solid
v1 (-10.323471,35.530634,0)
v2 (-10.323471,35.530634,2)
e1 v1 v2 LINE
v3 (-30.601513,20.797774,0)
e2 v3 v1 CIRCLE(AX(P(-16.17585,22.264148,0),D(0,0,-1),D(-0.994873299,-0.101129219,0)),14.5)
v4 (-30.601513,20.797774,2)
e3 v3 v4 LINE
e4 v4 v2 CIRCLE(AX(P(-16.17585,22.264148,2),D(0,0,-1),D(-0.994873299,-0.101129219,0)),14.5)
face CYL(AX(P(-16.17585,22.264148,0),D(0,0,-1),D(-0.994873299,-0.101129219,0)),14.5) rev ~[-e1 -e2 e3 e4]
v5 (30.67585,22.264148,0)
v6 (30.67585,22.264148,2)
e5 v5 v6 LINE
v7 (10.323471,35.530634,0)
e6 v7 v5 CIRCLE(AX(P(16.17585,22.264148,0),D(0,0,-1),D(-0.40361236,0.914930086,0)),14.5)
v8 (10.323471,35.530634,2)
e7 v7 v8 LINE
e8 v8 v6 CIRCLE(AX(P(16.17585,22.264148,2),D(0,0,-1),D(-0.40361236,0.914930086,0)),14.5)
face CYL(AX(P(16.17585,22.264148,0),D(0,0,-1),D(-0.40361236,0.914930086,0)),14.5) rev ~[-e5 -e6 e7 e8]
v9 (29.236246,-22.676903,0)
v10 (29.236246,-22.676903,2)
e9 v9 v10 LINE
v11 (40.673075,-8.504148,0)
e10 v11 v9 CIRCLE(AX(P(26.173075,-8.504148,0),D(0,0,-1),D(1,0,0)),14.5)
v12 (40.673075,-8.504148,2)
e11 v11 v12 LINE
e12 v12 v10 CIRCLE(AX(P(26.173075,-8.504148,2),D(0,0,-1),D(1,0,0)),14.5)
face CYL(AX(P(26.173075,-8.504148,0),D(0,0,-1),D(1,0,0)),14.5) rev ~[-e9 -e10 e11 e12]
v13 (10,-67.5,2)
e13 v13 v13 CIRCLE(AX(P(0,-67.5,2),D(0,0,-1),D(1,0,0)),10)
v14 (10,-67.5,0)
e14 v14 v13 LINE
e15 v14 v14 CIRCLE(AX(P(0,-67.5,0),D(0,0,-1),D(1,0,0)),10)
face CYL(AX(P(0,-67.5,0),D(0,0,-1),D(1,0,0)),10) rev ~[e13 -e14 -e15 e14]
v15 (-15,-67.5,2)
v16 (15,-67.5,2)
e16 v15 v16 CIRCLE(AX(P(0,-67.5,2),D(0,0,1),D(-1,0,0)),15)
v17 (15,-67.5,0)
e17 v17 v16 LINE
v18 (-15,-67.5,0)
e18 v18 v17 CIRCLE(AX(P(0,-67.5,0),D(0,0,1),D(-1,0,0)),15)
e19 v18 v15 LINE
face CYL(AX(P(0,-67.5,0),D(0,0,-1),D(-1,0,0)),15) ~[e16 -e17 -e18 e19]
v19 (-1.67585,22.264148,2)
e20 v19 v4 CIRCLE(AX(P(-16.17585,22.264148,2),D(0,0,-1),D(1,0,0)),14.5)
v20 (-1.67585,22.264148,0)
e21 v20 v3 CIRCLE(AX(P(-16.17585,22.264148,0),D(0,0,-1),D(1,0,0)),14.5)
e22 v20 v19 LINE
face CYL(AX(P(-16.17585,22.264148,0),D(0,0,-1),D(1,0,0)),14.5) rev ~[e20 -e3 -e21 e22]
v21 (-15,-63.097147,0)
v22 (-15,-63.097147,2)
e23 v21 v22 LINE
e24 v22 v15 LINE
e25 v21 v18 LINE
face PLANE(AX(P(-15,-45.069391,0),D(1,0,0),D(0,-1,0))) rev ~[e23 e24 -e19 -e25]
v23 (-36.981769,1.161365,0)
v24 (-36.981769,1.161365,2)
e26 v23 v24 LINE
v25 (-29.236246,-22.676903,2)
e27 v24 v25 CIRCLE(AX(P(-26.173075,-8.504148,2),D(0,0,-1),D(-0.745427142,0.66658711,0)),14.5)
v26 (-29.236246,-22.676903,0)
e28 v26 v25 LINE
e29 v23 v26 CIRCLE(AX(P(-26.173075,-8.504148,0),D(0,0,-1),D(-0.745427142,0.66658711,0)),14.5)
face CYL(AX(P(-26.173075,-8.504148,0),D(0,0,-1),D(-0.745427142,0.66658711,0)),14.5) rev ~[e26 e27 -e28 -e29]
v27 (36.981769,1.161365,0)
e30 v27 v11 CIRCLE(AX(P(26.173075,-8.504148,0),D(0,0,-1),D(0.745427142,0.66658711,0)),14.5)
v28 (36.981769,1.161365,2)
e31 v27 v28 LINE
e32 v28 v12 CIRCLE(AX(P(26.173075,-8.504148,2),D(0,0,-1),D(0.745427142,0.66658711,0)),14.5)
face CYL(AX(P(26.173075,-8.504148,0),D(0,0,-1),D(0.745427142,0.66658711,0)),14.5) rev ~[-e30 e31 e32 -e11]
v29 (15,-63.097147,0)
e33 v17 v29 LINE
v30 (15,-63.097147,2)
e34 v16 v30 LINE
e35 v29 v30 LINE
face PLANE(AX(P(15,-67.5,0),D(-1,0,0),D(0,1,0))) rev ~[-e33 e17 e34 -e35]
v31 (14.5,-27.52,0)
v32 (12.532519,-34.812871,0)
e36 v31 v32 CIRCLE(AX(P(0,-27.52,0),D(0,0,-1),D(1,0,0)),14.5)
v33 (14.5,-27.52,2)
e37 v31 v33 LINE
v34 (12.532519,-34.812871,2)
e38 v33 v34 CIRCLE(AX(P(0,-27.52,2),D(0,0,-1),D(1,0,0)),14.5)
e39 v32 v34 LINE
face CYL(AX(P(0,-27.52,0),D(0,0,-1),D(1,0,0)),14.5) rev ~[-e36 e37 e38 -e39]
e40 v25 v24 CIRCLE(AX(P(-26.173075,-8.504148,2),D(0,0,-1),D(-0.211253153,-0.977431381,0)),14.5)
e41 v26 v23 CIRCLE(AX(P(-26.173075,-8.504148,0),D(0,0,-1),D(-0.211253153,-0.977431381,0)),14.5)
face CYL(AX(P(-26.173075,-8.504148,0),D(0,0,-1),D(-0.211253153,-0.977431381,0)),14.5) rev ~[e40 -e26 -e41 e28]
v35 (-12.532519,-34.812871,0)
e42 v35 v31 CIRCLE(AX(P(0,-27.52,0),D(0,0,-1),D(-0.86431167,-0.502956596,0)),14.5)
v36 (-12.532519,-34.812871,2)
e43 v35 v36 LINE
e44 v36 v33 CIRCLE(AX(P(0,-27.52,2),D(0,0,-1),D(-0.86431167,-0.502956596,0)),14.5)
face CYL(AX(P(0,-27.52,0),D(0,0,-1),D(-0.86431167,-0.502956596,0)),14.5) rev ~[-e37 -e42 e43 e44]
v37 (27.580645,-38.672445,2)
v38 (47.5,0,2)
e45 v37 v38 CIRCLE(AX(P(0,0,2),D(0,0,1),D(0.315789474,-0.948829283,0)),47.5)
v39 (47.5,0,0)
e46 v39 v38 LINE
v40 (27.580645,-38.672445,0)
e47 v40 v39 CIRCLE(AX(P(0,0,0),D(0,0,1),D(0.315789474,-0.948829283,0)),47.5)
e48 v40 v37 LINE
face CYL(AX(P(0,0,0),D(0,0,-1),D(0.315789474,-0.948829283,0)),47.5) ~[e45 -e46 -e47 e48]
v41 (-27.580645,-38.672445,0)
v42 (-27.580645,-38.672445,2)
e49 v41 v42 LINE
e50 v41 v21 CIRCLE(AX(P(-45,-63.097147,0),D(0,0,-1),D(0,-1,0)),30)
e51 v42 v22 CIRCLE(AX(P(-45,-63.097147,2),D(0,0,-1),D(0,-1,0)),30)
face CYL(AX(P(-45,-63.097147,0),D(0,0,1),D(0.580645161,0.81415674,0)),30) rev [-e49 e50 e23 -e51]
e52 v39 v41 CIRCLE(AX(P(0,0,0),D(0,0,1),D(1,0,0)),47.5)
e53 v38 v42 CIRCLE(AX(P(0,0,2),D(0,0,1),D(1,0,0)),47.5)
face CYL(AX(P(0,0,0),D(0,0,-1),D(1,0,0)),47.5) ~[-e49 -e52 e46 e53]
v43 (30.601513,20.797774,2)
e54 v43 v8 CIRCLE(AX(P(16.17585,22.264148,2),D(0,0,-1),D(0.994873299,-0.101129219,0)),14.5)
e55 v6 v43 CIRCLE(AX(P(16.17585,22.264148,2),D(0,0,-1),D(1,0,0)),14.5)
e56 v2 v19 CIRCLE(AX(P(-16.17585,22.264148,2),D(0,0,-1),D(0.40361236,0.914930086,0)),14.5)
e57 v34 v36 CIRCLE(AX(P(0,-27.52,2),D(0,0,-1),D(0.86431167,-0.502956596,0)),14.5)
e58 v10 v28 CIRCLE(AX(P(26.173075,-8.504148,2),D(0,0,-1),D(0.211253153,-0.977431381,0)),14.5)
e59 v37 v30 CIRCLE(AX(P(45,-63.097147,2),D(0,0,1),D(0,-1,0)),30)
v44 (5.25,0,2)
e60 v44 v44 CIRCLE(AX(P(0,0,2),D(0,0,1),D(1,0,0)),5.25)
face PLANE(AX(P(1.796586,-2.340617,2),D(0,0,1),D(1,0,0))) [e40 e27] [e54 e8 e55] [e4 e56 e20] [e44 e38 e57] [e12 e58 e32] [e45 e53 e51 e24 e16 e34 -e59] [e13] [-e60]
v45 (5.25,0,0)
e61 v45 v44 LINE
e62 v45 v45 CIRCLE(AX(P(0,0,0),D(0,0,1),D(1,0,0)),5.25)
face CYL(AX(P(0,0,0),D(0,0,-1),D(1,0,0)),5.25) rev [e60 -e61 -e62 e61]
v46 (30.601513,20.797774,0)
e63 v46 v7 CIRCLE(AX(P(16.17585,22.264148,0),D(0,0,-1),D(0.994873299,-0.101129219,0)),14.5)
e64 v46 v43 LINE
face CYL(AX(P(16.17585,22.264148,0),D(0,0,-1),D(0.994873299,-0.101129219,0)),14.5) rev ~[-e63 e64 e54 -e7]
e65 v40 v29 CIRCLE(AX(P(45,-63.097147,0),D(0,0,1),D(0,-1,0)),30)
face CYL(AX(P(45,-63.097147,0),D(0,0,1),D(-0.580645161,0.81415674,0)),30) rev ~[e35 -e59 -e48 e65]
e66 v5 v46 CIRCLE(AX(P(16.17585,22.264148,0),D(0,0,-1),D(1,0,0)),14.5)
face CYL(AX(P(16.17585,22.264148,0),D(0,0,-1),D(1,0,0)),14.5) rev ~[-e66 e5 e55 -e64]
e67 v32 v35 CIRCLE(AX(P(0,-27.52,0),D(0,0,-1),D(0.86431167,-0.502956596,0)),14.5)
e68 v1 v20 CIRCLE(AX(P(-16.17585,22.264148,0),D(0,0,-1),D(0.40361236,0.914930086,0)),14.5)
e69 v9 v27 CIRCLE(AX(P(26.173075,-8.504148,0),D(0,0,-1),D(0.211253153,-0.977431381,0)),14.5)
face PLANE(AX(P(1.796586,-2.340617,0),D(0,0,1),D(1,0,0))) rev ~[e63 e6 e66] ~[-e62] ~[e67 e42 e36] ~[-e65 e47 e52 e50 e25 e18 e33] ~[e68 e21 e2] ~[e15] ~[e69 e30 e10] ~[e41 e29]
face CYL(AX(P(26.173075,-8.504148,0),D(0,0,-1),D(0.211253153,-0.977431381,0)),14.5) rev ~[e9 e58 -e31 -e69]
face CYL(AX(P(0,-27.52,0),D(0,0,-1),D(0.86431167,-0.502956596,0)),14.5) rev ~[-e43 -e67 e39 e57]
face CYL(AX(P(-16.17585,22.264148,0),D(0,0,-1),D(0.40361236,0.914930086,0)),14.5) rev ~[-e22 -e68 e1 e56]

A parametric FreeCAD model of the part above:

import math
import FreeCAD as App
import Part
import Sketcher
from FreeCAD import Vector


def edges_at(feature, points):
    """Names of the edges that pass closest to the given points."""
    edges = feature.Shape.Edges
    near = lambda p: min(range(len(edges)), key=lambda i: edges[i].distToShape(Part.Vertex(*p))[0])
    return sorted({f"Edge{near(p) + 1}" for p in points})

doc = App.newDocument("Part")
body = doc.addObject("PartDesign::Body", "Body")

sketch1 = doc.addObject("Sketcher::SketchObject", "Sketch")
body.addObject(sketch1)
sketch1.AttachmentSupport = (doc.XY_Plane, [""])
sketch1.MapMode = "FlatFace"
sketch1.addGeometry([
    Part.ArcOfCircle(Part.Circle(Vector(0, 0, 0), Vector(0, 0, 1), 47.5), math.radians(-72), math.radians(0)),
    Part.ArcOfCircle(Part.Circle(Vector(0, 0, 0), Vector(0, 0, 1), 47.5), math.radians(0), math.radians(252)),
    Part.LineSegment(Vector(-15, -45.1, 0), Vector(-15, -67.5, 0)),
    Part.ArcOfCircle(Part.Circle(Vector(0, -67.5, 0), Vector(0, 0, 1), 15), math.radians(180), math.radians(360)),
    Part.LineSegment(Vector(15, -67.5, 0), Vector(15, -45.1, 0)),
    Part.ArcOfCircle(Part.Circle(Vector(-26.2, -8.5, 0), Vector(0, 0, 1), 14.5), math.radians(138), math.radians(258)),
    Part.ArcOfCircle(Part.Circle(Vector(-26.2, -8.5, 0), Vector(0, 0, 1), 14.5), math.radians(-102), math.radians(138)),
    Part.ArcOfCircle(Part.Circle(Vector(0, -27.5, 0), Vector(0, 0, 1), 14.5), math.radians(-150), math.radians(-30)),
    Part.ArcOfCircle(Part.Circle(Vector(0, -27.5, 0), Vector(0, 0, 1), 14.5), math.radians(0), math.radians(210)),
    Part.ArcOfCircle(Part.Circle(Vector(0, -27.5, 0), Vector(0, 0, 1), 14.5), math.radians(-30), math.radians(0)),
    Part.ArcOfCircle(Part.Circle(Vector(26.2, -8.5, 0), Vector(0, 0, 1), 14.5), math.radians(-78), math.radians(0)),
    Part.ArcOfCircle(Part.Circle(Vector(26.2, -8.5, 0), Vector(0, 0, 1), 14.5), math.radians(42), math.radians(282)),
    Part.ArcOfCircle(Part.Circle(Vector(26.2, -8.5, 0), Vector(0, 0, 1), 14.5), math.radians(0), math.radians(42)),
    Part.ArcOfCircle(Part.Circle(Vector(-16.2, 22.3, 0), Vector(0, 0, 1), 14.5), math.radians(66), math.radians(186)),
    Part.ArcOfCircle(Part.Circle(Vector(-16.2, 22.3, 0), Vector(0, 0, 1), 14.5), math.radians(0), math.radians(66)),
    Part.ArcOfCircle(Part.Circle(Vector(-16.2, 22.3, 0), Vector(0, 0, 1), 14.5), math.radians(-174), math.radians(0)),
    Part.Circle(Vector(0, 0, 0), Vector(0, 0, 1), 5.2),
    Part.ArcOfCircle(Part.Circle(Vector(16.2, 22.3, 0), Vector(0, 0, 1), 14.5), math.radians(-5.8), math.radians(0)),
    Part.ArcOfCircle(Part.Circle(Vector(16.2, 22.3, 0), Vector(0, 0, 1), 14.5), math.radians(114), math.radians(354)),
    Part.ArcOfCircle(Part.Circle(Vector(16.2, 22.3, 0), Vector(0, 0, 1), 14.5), math.radians(0), math.radians(114)),
    Part.Circle(Vector(0, -67.5, 0), Vector(0, 0, 1), 10),
], False)
sketch1.addConstraint([
    Sketcher.Constraint("Tangent", 0, 2, 1, 1),
    Sketcher.Constraint("Coincident", 1, 2, 2, 1),
    Sketcher.Constraint("Tangent", 2, 2, 3, 1),
    Sketcher.Constraint("Tangent", 3, 2, 4, 1),
    Sketcher.Constraint("Coincident", 4, 2, 0, 1),
    Sketcher.Constraint("Tangent", 5, 1, 6, 2),
    Sketcher.Constraint("Coincident", 6, 1, 5, 2),
    Sketcher.Constraint("Tangent", 7, 1, 8, 2),
    Sketcher.Constraint("Tangent", 8, 1, 9, 2),
    Sketcher.Constraint("Tangent", 9, 1, 7, 2),
    Sketcher.Constraint("Tangent", 10, 1, 11, 2),
    Sketcher.Constraint("Tangent", 11, 1, 12, 2),
    Sketcher.Constraint("Tangent", 12, 1, 10, 2),
    Sketcher.Constraint("Tangent", 13, 1, 14, 2),
    Sketcher.Constraint("Tangent", 14, 1, 15, 2),
    Sketcher.Constraint("Tangent", 15, 1, 13, 2),
    Sketcher.Constraint("Tangent", 17, 1, 18, 2),
    Sketcher.Constraint("Tangent", 18, 1, 19, 2),
    Sketcher.Constraint("Tangent", 19, 1, 17, 2),
    Sketcher.Constraint("Vertical", 2),
    Sketcher.Constraint("Vertical", 4),
    Sketcher.Constraint("Coincident", 0, 3, -1, 1),
    Sketcher.Constraint("Coincident", 16, 3, -1, 1),
    Sketcher.Constraint("Coincident", 20, 3, 3, 3),
    Sketcher.Constraint("Equal", 0, 1),
    Sketcher.Constraint("Equal", 6, 7),
    Sketcher.Constraint("Equal", 9, 10),
    Sketcher.Constraint("Equal", 12, 13),
    Sketcher.Constraint("Equal", 15, 17),
    Sketcher.Constraint("Symmetric", 5, 3, 10, 3, -2),
    Sketcher.Constraint("Symmetric", 13, 3, 17, 3, -2),
    Sketcher.Constraint("Symmetric", 7, 1, 9, 1, -2),
    Sketcher.Constraint("PointOnObject", 3, 3, -2),
    Sketcher.Constraint("PointOnObject", 0, 2, -1),
    Sketcher.Constraint("Horizontal", 9, 3, 8, 1),
    Sketcher.Constraint("Horizontal", 6, 1, 10, 1),
    Sketcher.Constraint("Horizontal", 5, 1, 11, 1),
    Sketcher.Constraint("Horizontal", 11, 3, 12, 1),
    Sketcher.Constraint("Horizontal", 19, 3, 14, 1),
    Sketcher.Constraint("Horizontal", 15, 1, 17, 1),
    Sketcher.Constraint("Horizontal", 13, 1, 18, 1),
    Sketcher.Constraint("Horizontal", 14, 1, 19, 1),
    Sketcher.Constraint("Diameter", 20, 20.0),
    Sketcher.Constraint("Radius", 3, 15.0),
    Sketcher.Constraint("Diameter", 16, 10.5),
    Sketcher.Constraint("Radius", 0, 47.5),
    Sketcher.Constraint("Radius", 5, 14.5),
    Sketcher.Constraint("DistanceY", 3, 3, -1, 1, 67.5),
    Sketcher.Constraint("DistanceY", 7, 3, -1, 1, 27.52),
    Sketcher.Constraint("DistanceX", 13, 3, 17, 3, 32.3517),
    Sketcher.Constraint("DistanceX", 5, 1, -1, 1, 36.981769),
    Sketcher.Constraint("DistanceX", 7, 1, -1, 1, 12.532519),
    Sketcher.Constraint("DistanceX", 13, 1, -1, 1, 10.323471),
    Sketcher.Constraint("DistanceX", 6, 1, 5, 3, 3.063171),
    Sketcher.Constraint("DistanceY", 6, 1, 5, 1, 23.838268),
    Sketcher.Constraint("DistanceY", 1, 2, 6, 1, 22.392488),
    Sketcher.Constraint("DistanceY", 5, 1, 15, 1, 19.636409),
    Sketcher.Constraint("DistanceY", 15, 1, 13, 1, 14.73286),
])
pad1 = doc.addObject("PartDesign::Pad", "Pad")
body.addObject(pad1)
pad1.Profile = sketch1
pad1.Length = 2
doc.recompute()

fillet = doc.addObject("PartDesign::Fillet", "Fillet")
body.addObject(fillet)
fillet.Base = (pad1, edges_at(pad1, [(15, -45.069, 1), (-15, -45.069, 1)]))
fillet.Radius = 30

doc.recompute()
